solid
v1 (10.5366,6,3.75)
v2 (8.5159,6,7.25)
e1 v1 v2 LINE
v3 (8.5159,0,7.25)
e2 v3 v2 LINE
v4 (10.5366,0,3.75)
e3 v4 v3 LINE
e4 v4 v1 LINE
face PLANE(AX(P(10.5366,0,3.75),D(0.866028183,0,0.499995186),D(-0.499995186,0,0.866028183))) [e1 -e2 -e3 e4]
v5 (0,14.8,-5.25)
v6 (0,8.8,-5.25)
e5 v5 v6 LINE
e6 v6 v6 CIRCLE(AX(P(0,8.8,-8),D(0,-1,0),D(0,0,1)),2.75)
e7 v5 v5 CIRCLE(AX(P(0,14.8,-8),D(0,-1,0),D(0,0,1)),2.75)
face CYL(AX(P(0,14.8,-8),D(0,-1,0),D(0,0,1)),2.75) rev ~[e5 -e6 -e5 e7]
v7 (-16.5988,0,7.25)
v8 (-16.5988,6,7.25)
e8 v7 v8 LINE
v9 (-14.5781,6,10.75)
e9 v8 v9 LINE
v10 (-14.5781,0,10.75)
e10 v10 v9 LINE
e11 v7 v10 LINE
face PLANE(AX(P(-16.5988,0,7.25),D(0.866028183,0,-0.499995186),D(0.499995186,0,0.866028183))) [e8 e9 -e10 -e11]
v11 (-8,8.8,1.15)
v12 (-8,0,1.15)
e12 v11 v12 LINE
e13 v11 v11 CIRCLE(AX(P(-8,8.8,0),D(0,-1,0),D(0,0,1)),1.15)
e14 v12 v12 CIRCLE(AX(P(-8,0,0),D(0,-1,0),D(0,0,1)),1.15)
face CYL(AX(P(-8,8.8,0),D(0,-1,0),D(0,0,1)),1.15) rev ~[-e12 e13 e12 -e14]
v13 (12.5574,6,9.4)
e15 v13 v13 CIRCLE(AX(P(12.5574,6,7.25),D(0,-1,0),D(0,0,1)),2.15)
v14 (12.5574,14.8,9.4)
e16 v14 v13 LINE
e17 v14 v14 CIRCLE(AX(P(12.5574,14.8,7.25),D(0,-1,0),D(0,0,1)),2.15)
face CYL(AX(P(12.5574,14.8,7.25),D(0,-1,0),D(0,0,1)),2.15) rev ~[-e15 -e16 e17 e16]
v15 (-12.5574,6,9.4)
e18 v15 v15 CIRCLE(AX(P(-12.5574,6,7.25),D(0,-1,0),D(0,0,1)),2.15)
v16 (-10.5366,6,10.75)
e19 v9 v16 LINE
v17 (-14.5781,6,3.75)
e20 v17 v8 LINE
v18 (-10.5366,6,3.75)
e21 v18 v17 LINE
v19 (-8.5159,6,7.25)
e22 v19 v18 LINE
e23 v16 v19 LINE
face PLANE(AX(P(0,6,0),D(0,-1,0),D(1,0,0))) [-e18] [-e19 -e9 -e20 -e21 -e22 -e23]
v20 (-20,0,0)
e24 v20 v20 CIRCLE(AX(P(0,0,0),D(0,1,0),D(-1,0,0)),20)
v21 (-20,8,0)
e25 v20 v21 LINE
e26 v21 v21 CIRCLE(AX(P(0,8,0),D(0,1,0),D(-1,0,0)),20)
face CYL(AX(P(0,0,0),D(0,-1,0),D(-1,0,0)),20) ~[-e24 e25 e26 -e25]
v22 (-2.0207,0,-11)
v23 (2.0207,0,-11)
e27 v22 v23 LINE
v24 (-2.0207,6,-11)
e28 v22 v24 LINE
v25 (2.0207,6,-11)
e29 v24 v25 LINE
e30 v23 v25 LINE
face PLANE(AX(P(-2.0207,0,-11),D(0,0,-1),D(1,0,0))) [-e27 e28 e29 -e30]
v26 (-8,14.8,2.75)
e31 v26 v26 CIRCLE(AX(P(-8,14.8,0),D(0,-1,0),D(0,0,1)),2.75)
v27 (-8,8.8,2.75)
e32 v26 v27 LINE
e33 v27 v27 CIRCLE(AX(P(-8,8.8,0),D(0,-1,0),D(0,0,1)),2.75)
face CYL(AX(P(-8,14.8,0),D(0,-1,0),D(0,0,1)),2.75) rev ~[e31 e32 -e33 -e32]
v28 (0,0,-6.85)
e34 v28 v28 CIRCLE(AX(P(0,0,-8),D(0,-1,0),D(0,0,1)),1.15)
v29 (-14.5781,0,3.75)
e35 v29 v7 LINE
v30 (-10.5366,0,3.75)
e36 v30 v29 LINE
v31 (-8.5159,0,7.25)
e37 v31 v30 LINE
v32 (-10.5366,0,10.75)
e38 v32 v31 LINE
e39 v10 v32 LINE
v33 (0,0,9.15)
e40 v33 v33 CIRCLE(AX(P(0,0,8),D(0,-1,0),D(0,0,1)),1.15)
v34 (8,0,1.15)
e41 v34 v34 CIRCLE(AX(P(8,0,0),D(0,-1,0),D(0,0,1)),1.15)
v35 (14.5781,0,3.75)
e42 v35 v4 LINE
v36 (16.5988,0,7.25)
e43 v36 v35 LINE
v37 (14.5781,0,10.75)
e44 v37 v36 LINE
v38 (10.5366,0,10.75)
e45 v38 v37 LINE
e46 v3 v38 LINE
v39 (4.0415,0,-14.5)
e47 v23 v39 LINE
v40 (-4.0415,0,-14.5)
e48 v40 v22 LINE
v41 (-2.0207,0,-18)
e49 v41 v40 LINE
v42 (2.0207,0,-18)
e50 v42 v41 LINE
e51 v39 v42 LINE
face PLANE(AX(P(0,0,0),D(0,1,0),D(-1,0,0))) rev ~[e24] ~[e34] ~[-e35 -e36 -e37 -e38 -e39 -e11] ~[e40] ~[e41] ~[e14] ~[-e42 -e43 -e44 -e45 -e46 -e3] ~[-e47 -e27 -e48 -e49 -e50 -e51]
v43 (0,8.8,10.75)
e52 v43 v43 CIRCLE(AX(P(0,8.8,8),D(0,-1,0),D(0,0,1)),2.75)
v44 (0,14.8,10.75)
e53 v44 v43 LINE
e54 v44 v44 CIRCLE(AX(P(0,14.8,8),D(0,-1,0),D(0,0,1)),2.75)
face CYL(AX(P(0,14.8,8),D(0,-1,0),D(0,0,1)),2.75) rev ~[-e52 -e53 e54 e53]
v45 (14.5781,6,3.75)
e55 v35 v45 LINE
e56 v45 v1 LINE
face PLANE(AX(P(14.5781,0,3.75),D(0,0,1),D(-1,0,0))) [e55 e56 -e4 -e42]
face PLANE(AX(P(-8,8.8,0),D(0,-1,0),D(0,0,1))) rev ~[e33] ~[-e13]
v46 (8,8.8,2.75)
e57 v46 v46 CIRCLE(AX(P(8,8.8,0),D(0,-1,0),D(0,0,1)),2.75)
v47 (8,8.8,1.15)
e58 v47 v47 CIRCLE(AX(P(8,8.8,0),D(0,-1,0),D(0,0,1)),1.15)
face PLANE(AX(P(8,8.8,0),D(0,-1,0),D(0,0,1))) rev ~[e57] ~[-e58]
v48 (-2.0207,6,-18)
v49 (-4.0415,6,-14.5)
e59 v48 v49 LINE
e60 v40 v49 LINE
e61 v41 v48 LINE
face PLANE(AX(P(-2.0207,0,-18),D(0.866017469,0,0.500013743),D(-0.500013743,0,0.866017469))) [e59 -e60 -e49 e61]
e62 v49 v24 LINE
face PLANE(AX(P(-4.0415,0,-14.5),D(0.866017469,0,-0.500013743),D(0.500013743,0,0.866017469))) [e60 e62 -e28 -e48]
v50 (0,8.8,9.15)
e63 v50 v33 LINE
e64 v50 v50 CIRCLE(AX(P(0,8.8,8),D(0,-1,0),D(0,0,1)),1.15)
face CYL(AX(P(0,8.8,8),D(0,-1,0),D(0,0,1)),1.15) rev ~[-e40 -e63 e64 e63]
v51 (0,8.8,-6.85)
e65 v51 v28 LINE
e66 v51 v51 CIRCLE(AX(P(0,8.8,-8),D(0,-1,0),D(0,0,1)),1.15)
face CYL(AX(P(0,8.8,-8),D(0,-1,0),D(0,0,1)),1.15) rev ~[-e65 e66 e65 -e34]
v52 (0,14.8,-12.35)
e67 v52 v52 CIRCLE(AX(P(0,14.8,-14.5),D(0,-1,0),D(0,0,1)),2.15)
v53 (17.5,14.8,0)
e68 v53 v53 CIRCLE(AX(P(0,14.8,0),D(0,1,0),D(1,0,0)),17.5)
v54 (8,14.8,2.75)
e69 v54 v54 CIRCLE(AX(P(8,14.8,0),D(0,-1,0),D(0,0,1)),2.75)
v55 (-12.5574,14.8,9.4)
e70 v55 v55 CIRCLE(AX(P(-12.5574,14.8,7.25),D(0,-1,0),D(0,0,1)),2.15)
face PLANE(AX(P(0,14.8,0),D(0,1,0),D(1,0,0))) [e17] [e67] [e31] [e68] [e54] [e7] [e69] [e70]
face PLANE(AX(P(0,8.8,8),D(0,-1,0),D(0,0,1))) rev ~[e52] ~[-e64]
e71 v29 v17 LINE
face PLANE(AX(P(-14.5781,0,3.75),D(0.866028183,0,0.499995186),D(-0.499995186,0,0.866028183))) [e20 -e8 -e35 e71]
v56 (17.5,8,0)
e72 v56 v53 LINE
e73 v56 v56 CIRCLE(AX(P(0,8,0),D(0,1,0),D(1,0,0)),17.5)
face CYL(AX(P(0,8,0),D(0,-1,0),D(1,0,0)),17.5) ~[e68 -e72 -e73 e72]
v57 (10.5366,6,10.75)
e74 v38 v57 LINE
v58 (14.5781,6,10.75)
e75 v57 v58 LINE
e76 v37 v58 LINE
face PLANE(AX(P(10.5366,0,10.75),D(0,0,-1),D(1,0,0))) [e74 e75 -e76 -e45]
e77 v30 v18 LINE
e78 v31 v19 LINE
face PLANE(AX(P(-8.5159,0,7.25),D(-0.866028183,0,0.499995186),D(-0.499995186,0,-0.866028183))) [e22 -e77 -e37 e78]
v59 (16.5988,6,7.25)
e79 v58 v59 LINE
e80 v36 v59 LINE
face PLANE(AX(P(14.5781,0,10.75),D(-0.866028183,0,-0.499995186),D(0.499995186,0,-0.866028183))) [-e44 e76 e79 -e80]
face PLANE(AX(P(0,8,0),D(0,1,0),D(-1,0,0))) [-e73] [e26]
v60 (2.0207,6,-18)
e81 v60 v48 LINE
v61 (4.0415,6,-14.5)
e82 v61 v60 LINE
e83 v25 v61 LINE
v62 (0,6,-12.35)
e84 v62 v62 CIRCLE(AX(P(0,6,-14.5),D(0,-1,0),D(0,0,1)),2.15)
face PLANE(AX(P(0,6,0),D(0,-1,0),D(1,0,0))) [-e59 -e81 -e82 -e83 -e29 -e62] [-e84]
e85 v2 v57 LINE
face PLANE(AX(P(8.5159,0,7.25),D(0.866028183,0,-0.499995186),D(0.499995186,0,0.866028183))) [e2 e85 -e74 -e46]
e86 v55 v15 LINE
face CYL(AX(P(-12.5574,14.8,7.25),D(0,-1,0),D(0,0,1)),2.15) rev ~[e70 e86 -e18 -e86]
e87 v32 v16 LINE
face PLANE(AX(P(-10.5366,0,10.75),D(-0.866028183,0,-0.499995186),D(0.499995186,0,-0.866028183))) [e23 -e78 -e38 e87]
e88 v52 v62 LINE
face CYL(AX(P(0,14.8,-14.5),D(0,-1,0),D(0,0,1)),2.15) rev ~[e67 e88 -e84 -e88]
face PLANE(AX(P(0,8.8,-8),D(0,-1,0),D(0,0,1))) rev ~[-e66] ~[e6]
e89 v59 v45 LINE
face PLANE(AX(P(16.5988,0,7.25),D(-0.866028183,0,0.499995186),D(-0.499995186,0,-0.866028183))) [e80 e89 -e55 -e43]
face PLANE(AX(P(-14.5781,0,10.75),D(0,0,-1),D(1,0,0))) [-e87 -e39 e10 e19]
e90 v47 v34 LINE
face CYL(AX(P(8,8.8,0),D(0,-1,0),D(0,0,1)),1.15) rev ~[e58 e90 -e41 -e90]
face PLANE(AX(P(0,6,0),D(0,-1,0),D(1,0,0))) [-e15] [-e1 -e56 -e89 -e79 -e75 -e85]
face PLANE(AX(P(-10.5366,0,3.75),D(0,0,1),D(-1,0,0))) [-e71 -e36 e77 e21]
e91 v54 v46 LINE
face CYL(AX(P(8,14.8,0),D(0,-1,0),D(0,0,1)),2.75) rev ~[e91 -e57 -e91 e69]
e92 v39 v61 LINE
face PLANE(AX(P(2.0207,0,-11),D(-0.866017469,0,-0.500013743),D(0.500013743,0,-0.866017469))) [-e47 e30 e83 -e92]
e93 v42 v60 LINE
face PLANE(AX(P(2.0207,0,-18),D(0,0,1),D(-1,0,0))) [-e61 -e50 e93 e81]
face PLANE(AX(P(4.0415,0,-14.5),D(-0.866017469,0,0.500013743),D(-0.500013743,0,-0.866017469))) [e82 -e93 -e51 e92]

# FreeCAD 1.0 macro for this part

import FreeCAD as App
import Part
import Sketcher

V = App.Vector
Q = App.Units.Quantity


def add_polygon(sketch, points):
    """Adds a closed chain of lines whose ends are joined by coincident constraints."""
    first, n = sketch.GeometryCount, len(points)
    for a, b in zip(points, points[1:] + points[:1]):
        sketch.addGeometry(Part.LineSegment(App.Vector(*a, 0), App.Vector(*b, 0)), False)
    for i in range(n):
        sketch.addConstraint(Sketcher.Constraint("Coincident", first + i, 2, first + (i + 1) % n, 1))

doc = App.newDocument("Part")
body = doc.addObject("PartDesign::Body", "Body")

# Sketch on XZ plane
sketch1 = body.newObject("Sketcher::SketchObject", "Sketch")
sketch1.AttachmentSupport = (doc.getObject("XZ_Plane"), [""])
sketch1.MapMode = "FlatFace"
sketch1.addGeometry(Part.Circle(V(0, 0, 0), V(0, 0, 1), 20), False)
sketch1.addConstraint([
    Sketcher.Constraint("Coincident", 0, 3, -1, 1),
    Sketcher.Constraint("Diameter", 0, Q("40 mm")),
])
pad1 = body.newObject("PartDesign::Pad", "Pad")
pad1.Profile = sketch1
pad1.Length = 8
pad1.Reversed = True

# Sketch on XZ plane
sketch2 = body.newObject("Sketcher::SketchObject", "Sketch001")
sketch2.AttachmentSupport = (doc.getObject("XZ_Plane"), [""])
sketch2.MapMode = "FlatFace"
sketch2.AttachmentOffset = App.Placement(V(0, 0, -8), App.Rotation())
sketch2.addGeometry(Part.Circle(V(0, 0, 0), V(0, 0, 1), 18), False)
sketch2.addConstraint([
    Sketcher.Constraint("Coincident", 0, 3, -1, 1),
    Sketcher.Constraint("Diameter", 0, Q("35 mm")),
])
pad2 = body.newObject("PartDesign::Pad", "Pad001")
pad2.Profile = sketch2
pad2.Length = 6.8
pad2.Reversed = True

# Sketch on XZ plane
sketch3 = body.newObject("Sketcher::SketchObject", "Sketch002")
sketch3.AttachmentSupport = (doc.getObject("XZ_Plane"), [""])
sketch3.MapMode = "FlatFace"
sketch3.AttachmentOffset = App.Placement(V(0, 0, -14.8), App.Rotation())
sketch3.addGeometry([
    Part.Circle(V(0, -8, 0), V(0, 0, 1), 1.1),
    Part.Circle(V(-8, 0, 0), V(0, 0, 1), 1.1),
    Part.Circle(V(0, 8, 0), V(0, 0, 1), 1.1),
    Part.Circle(V(8, 0, 0), V(0, 0, 1), 1.1),
], False)
sketch3.addConstraint([
    Sketcher.Constraint("Equal", 0, 1),
    Sketcher.Constraint("Equal", 1, 2),
    Sketcher.Constraint("Equal", 2, 3),
    Sketcher.Constraint("Symmetric", 0, 3, 2, 3, -1, 1),
    Sketcher.Constraint("Symmetric", 1, 3, 3, 3, -1, 1),
    Sketcher.Constraint("PointOnObject", 0, 3, -2),
    Sketcher.Constraint("PointOnObject", 1, 3, -1),
    Sketcher.Constraint("Diameter", 0, Q("2.3 mm")),
    Sketcher.Constraint("DistanceY", 0, 3, -1, 1, Q("8 mm")),
    Sketcher.Constraint("DistanceX", 1, 3, -1, 1, Q("8 mm")),
])
doc.recompute()
hole = body.newObject("PartDesign::Hole", "Hole")
hole.Profile = sketch3
hole.ThreadType = "None"
hole.Diameter = 2.3
hole.DepthType = "ThroughAll"
hole.HoleCutType = "Counterbore"
hole.HoleCutDiameter = 5.5
hole.HoleCutDepth = 6
hole.Reversed = True

# Sketch on XZ plane
sketch4 = body.newObject("Sketcher::SketchObject", "Sketch003")
sketch4.AttachmentSupport = (doc.getObject("XZ_Plane"), [""])
sketch4.MapMode = "FlatFace"
sketch4.AttachmentOffset = App.Placement(V(0, 0, -14.8), App.Rotation())
sketch4.addGeometry([
    Part.Circle(V(0, -14.5, 0), V(0, 0, 1), 2.1),
    Part.Circle(V(-12.6, 7.2, 0), V(0, 0, 1), 2.1),
    Part.Circle(V(12.6, 7.2, 0), V(0, 0, 1), 2.1),
], False)
sketch4.addConstraint([
    Sketcher.Constraint("Equal", 0, 1),
    Sketcher.Constraint("Equal", 1, 2),
    Sketcher.Constraint("Symmetric", 1, 3, 2, 3, -2),
    Sketcher.Constraint("PointOnObject", 0, 3, -2),
    Sketcher.Constraint("Diameter", 0, Q("4.3 mm")),
    Sketcher.Constraint("DistanceY", 0, 3, -1, 1, Q("14.5 mm")),
    Sketcher.Constraint("DistanceY", -1, 1, 1, 3, Q("7.25 mm")),
    Sketcher.Constraint("DistanceX", 1, 3, -1, 1, Q("12.5574 mm")),
])
doc.recompute()
hole2 = body.newObject("PartDesign::Hole", "Hole001")
hole2.Profile = sketch4
hole2.ThreadType = "None"
hole2.Diameter = 4.3
hole2.DepthType = "ThroughAll"
hole2.Reversed = True

# Sketch on XZ plane
sketch5 = body.newObject("Sketcher::SketchObject", "Sketch004")
sketch5.AttachmentSupport = (doc.getObject("XZ_Plane"), [""])
sketch5.MapMode = "FlatFace"
add_polygon(sketch5, [(2, -18), (4, -14.5), (2, -11), (-2, -11), (-4, -14.5), (-2, -18)])  # lines 0-5
add_polygon(sketch5, [(16.6, 7.2), (14.6, 10.8), (10.5, 10.8), (8.5, 7.2), (10.5, 3.8), (14.6, 3.8)])  # lines 6-11
add_polygon(sketch5, [(-14.6, 10.8), (-16.6, 7.2), (-14.6, 3.8), (-10.5, 3.8), (-8.5, 7.2), (-10.5, 10.8)])  # lines 12-17
sketch5.addConstraint([
    Sketcher.Constraint("Horizontal", 2),
    Sketcher.Constraint("Horizontal", 5),
    Sketcher.Constraint("Horizontal", 7),
    Sketcher.Constraint("Horizontal", 10),
    Sketcher.Constraint("Horizontal", 14),
    Sketcher.Constraint("Horizontal", 17),
    Sketcher.Constraint("Symmetric", 0, 2, 3, 2, -2),
    Sketcher.Constraint("Symmetric", 11, 2, 12, 2, -2),
    Sketcher.Constraint("Symmetric", 10, 2, 13, 2, -2),
    Sketcher.Constraint("Symmetric", 8, 2, 15, 2, -2),
    Sketcher.Constraint("Symmetric", 7, 2, 16, 2, -2),
    Sketcher.Constraint("Parallel", 0, 3),
    Sketcher.Constraint("Parallel", 1, 4),
    Sketcher.Constraint("Parallel", 4, 6),
    Sketcher.Constraint("Parallel", 3, 8),
    Sketcher.Constraint("Parallel", 6, 9),
    Sketcher.Constraint("Parallel", 8, 11),
    Sketcher.Constraint("Parallel", 11, 12),
    Sketcher.Constraint("Parallel", 9, 13),
    Sketcher.Constraint("Parallel", 12, 15),
    Sketcher.Constraint("Horizontal", 8, 2, 11, 2),
    Sketcher.Constraint("Vertical", 2, 2, 4, 2),
    Sketcher.Constraint("Vertical", 7, 2, 9, 2),
    Sketcher.Constraint("Equal", 5, 7),
    Sketcher.Constraint("Equal", 4, 6),
    Sketcher.Constraint("DistanceY", 4, 2, 2, 2, Q("7 mm")),
    Sketcher.Constraint("Angle", 0, Q("59.999 deg")),
    Sketcher.Constraint("DistanceY", 1, 2, -1, 1, Q("11 mm")),
    Sketcher.Constraint("DistanceY", -1, 1, 6, 2, Q("10.75 mm")),
    Sketcher.Constraint("DistanceX", 2, 2, 2, 1, Q("4.0414 mm")),
    Sketcher.Constraint("DistanceX", -1, 1, 6, 2, Q("14.578 mm")),
])
pocket1 = body.newObject("PartDesign::Pocket", "Pocket")
pocket1.Profile = sketch5
pocket1.Length = 6

doc.recompute()
